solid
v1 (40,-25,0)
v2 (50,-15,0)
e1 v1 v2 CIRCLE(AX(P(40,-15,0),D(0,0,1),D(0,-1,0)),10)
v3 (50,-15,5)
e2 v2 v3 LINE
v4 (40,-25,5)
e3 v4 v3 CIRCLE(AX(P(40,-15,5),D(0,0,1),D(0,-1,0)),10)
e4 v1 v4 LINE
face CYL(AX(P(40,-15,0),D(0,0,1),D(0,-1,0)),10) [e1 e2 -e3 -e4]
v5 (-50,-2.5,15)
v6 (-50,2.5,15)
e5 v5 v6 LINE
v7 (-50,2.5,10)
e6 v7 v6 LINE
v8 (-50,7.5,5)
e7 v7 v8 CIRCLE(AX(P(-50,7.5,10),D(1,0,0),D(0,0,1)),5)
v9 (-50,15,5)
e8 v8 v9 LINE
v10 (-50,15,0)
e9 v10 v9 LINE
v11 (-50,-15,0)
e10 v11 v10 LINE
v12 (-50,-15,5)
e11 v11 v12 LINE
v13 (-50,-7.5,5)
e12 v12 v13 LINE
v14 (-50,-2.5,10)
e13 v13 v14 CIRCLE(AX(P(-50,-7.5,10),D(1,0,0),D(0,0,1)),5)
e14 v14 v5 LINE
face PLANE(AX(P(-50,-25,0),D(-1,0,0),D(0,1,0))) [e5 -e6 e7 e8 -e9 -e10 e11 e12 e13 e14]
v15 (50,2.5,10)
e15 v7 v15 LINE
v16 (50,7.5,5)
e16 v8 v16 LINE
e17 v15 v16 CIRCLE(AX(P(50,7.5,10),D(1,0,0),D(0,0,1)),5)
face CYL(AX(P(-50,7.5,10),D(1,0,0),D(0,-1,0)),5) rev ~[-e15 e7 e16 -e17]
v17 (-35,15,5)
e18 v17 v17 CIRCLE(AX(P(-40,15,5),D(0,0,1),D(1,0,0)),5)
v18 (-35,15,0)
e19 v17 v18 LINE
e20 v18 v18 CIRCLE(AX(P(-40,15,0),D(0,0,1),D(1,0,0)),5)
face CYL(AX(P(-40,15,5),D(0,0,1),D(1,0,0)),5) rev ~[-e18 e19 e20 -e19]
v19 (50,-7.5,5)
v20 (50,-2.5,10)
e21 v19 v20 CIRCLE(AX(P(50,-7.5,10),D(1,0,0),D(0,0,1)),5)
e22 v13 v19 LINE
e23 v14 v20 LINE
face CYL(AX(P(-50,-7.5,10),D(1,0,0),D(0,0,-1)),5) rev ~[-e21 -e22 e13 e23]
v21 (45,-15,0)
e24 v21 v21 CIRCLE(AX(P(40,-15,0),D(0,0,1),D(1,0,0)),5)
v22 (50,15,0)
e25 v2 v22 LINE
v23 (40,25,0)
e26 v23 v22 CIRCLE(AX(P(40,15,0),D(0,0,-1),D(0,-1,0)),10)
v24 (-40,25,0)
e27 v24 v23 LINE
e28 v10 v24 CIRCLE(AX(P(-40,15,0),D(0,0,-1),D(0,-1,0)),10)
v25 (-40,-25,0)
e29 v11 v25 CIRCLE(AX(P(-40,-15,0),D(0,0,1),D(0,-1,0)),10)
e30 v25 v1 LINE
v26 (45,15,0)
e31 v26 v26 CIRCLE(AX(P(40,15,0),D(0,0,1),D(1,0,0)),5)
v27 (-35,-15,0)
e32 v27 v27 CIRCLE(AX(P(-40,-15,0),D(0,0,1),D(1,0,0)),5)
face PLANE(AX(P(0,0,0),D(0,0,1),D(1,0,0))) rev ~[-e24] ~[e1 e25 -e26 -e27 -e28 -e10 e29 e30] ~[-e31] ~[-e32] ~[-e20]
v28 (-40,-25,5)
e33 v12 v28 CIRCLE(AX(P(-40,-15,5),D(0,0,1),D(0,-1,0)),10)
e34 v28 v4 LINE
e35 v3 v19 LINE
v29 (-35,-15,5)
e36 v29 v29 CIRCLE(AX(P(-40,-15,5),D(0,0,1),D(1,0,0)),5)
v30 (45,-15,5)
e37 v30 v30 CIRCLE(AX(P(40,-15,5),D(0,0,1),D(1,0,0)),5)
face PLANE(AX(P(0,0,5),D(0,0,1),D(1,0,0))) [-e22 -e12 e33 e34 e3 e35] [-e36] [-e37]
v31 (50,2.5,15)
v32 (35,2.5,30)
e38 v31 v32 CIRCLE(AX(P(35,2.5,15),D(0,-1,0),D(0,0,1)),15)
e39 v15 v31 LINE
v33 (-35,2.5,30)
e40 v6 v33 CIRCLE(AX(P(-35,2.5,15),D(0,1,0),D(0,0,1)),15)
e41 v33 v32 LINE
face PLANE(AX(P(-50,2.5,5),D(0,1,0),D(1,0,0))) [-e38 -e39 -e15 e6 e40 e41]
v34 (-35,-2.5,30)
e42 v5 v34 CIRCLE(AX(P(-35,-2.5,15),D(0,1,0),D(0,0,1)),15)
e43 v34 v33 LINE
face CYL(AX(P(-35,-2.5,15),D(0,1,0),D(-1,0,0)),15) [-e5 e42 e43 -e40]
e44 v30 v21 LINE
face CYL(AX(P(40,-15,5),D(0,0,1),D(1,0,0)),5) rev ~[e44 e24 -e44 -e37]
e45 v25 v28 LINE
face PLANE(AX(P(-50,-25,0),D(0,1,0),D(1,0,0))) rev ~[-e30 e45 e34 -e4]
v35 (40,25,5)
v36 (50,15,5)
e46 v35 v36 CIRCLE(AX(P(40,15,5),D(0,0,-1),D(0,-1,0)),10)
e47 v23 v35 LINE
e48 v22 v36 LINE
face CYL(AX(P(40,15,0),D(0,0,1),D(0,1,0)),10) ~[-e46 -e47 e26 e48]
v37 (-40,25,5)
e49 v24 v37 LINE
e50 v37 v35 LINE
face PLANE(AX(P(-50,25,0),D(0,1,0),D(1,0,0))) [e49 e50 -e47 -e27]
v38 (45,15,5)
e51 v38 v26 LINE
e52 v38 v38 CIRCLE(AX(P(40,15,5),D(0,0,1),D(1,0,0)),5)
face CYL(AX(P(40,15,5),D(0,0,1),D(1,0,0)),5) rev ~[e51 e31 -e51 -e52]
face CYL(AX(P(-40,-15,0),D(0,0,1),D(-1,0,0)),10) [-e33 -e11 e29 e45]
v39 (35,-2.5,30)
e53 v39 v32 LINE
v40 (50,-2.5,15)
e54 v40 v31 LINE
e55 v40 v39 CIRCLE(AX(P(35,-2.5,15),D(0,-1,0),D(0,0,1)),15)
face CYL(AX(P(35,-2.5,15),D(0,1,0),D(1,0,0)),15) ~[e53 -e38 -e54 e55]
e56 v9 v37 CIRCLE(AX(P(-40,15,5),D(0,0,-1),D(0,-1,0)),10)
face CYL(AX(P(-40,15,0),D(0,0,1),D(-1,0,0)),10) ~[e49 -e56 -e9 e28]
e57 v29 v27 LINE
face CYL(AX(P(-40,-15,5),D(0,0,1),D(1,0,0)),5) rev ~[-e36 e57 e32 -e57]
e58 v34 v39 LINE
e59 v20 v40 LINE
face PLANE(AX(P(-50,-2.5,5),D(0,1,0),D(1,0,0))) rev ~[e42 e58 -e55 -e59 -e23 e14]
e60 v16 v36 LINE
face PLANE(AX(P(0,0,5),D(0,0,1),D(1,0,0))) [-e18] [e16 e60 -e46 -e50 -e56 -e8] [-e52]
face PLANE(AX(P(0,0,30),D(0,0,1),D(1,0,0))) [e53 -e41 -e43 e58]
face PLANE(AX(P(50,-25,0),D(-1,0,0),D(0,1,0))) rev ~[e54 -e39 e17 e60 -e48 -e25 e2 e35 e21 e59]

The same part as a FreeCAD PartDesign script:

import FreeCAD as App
import Part
import Sketcher

V = App.Vector


def edges_at(feature, points):
    """Names of the edges that pass closest to the given points."""
    edges = feature.Shape.Edges
    near = lambda p: min(range(len(edges)), key=lambda i: edges[i].distToShape(Part.Vertex(*p))[0])
    return sorted({f"Edge{near(p) + 1}" for p in points})

doc = App.newDocument("Part")
body = doc.addObject("PartDesign::Body", "Body")

# Sketch on XY plane
sketch1 = body.newObject("Sketcher::SketchObject", "Sketch")
sketch1.AttachmentSupport = (doc.getObject("XY_Plane"), [""])
sketch1.MapMode = "FlatFace"
sketch1.addGeometry(Part.LineSegment(V(-50, 25, 0), V(-50, -25, 0)), False)
sketch1.addGeometry(Part.LineSegment(V(-50, -25, 0), V(50, -25, 0)), False)
sketch1.addGeometry(Part.LineSegment(V(50, -25, 0), V(50, 25, 0)), False)
sketch1.addGeometry(Part.LineSegment(V(50, 25, 0), V(-50, 25, 0)), False)
sketch1.addConstraint(Sketcher.Constraint("Coincident", 0, 2, 1, 1))
sketch1.addConstraint(Sketcher.Constraint("Coincident", 1, 2, 2, 1))
sketch1.addConstraint(Sketcher.Constraint("Coincident", 2, 2, 3, 1))
sketch1.addConstraint(Sketcher.Constraint("Coincident", 3, 2, 0, 1))
sketch1.addConstraint(Sketcher.Constraint("Vertical", 0))
sketch1.addConstraint(Sketcher.Constraint("Horizontal", 1))
sketch1.addConstraint(Sketcher.Constraint("Vertical", 2))
sketch1.addConstraint(Sketcher.Constraint("Horizontal", 3))
sketch1.addConstraint(Sketcher.Constraint("Symmetric", 0, 2, 2, 2, -1, 1))
sketch1.addConstraint(Sketcher.Constraint("DistanceX", 1, 1, 1, 2, 100.0))
sketch1.addConstraint(Sketcher.Constraint("DistanceY", 0, 2, 0, 1, 50.0))
pad1 = body.newObject("PartDesign::Pad", "Pad")
pad1.Profile = sketch1
pad1.Length = 5

# Sketch on XY plane
sketch2 = body.newObject("Sketcher::SketchObject", "Sketch001")
sketch2.AttachmentSupport = (doc.getObject("XY_Plane"), [""])
sketch2.MapMode = "FlatFace"
sketch2.AttachmentOffset = App.Placement(V(0, 0, 5), App.Rotation())
sketch2.addGeometry(Part.Circle(V(-40, 15, 0), V(0, 0, 1), 5), False)
sketch2.addGeometry(Part.Circle(V(40, 15, 0), V(0, 0, 1), 5), False)
sketch2.addGeometry(Part.Circle(V(40, -15, 0), V(0, 0, 1), 5), False)
sketch2.addGeometry(Part.Circle(V(-40, -15, 0), V(0, 0, 1), 5), False)
sketch2.addConstraint(Sketcher.Constraint("Equal", 0, 1))
sketch2.addConstraint(Sketcher.Constraint("Equal", 1, 2))
sketch2.addConstraint(Sketcher.Constraint("Equal", 2, 3))
sketch2.addConstraint(Sketcher.Constraint("Symmetric", 0, 3, 2, 3, -1, 1))
sketch2.addConstraint(Sketcher.Constraint("Symmetric", 1, 3, 3, 3, -1, 1))
sketch2.addConstraint(Sketcher.Constraint("Symmetric", 0, 3, 1, 3, -2))
sketch2.addConstraint(Sketcher.Constraint("Diameter", 0, 10.0))
sketch2.addConstraint(Sketcher.Constraint("DistanceX", 0, 3, -1, 1, 40.0))
sketch2.addConstraint(Sketcher.Constraint("DistanceY", -1, 1, 0, 3, 15.0))
pocket1 = body.newObject("PartDesign::Pocket", "Pocket")
pocket1.Profile = sketch2
pocket1.Length = 5

# Sketch on XY plane
sketch3 = body.newObject("Sketcher::SketchObject", "Sketch002")
sketch3.AttachmentSupport = (doc.getObject("XY_Plane"), [""])
sketch3.MapMode = "FlatFace"
sketch3.AttachmentOffset = App.Placement(V(0, 0, 5), App.Rotation())
sketch3.addGeometry(Part.LineSegment(V(-50, 2, 0), V(-50, -2, 0)), False)
sketch3.addGeometry(Part.LineSegment(V(-50, -2, 0), V(50, -2, 0)), False)
sketch3.addGeometry(Part.LineSegment(V(50, -2, 0), V(50, 2, 0)), False)
sketch3.addGeometry(Part.LineSegment(V(50, 2, 0), V(-50, 2, 0)), False)
sketch3.addConstraint(Sketcher.Constraint("Coincident", 0, 2, 1, 1))
sketch3.addConstraint(Sketcher.Constraint("Coincident", 1, 2, 2, 1))
sketch3.addConstraint(Sketcher.Constraint("Coincident", 2, 2, 3, 1))
sketch3.addConstraint(Sketcher.Constraint("Coincident", 3, 2, 0, 1))
sketch3.addConstraint(Sketcher.Constraint("Vertical", 0))
sketch3.addConstraint(Sketcher.Constraint("Horizontal", 1))
sketch3.addConstraint(Sketcher.Constraint("Vertical", 2))
sketch3.addConstraint(Sketcher.Constraint("Horizontal", 3))
sketch3.addConstraint(Sketcher.Constraint("Symmetric", 0, 2, 2, 2, -1, 1))
sketch3.addConstraint(Sketcher.Constraint("DistanceX", 1, 1, 1, 2, 100.0))
sketch3.addConstraint(Sketcher.Constraint("DistanceY", 0, 2, 0, 1, 5.0))
pad2 = body.newObject("PartDesign::Pad", "Pad001")
pad2.Profile = sketch3
pad2.Length = 25
doc.recompute()

fillet = body.newObject("PartDesign::Fillet", "Fillet")
fillet.Base = (pad2, edges_at(pad2, [(50, 0, 30), (-50, 0, 30)]))
fillet.Radius = 15
doc.recompute()

fillet2 = body.newObject("PartDesign::Fillet", "Fillet001")
fillet2.Base = (fillet, edges_at(fillet, [
    (50, 25, 2.5),
    (-50, -25, 2.5),
    (-50, 25, 2.5),
    (50, -25, 2.5),
]))
fillet2.Radius = 10
doc.recompute()

fillet3 = body.newObject("PartDesign::Fillet", "Fillet002")
fillet3.Base = (fillet2, edges_at(fillet2, [(0, -2.5, 5), (0, 2.5, 5)]))
fillet3.Radius = 5

doc.recompute()
